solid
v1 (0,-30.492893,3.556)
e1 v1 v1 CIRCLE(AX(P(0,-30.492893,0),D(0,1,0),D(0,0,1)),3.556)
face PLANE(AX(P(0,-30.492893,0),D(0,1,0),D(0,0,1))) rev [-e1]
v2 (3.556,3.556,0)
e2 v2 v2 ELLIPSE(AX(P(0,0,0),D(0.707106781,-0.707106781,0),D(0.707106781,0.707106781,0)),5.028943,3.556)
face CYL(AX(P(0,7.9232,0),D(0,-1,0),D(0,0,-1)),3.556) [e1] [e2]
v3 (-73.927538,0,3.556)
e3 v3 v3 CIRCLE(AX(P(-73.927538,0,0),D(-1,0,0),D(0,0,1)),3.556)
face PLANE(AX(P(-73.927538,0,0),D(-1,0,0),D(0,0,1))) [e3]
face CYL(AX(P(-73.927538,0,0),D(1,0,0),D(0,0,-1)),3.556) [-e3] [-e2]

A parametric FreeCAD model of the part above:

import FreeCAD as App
import Part
import Sketcher
from FreeCAD import Vector
Q = App.Units.Quantity

doc = App.newDocument("Part")
body = doc.addObject("PartDesign::Body", "Body")

# Sketch on YZ plane
sketch1 = body.newObject("Sketcher::SketchObject", "Sketch")
sketch1.AttachmentSupport = (doc.getObject("YZ_Plane"), [""])
sketch1.MapMode = "FlatFace"
sketch1.AttachmentOffset = App.Placement(Vector(0, 0, -73.927538), App.Rotation())
sketch1.addGeometry(Part.Circle(Vector(0, 0, 0), Vector(0, 0, 1), 3.6), False)
sketch1.addConstraint(Sketcher.Constraint("Coincident", 0, 3, -1, 1))
sketch1.addConstraint(Sketcher.Constraint("Diameter", 0, Q("0.28 in")))

# Sketch on XY plane
sketch2 = body.newObject("Sketcher::SketchObject", "Sketch001")
sketch2.AttachmentSupport = (doc.getObject("XY_Plane"), [""])
sketch2.MapMode = "FlatFace"
sketch2.addGeometry(Part.LineSegment(Vector(-74, 0, 0), Vector(0, 0, 0)), False)
sketch2.addGeometry(Part.LineSegment(Vector(0, 0, 0), Vector(0, -30, 0)), False)
sketch2.addConstraint(Sketcher.Constraint("Coincident", 0, 2, 1, 1))
sketch2.addConstraint(Sketcher.Constraint("Horizontal", 0))
sketch2.addConstraint(Sketcher.Constraint("Vertical", 1))
sketch2.addConstraint(Sketcher.Constraint("Coincident", 0, 2, -1, 1))
sketch2.addConstraint(Sketcher.Constraint("DistanceX", 0, 1, 0, 2, Q("73.927538 mm")))
sketch2.addConstraint(Sketcher.Constraint("DistanceY", 1, 2, 1, 1, Q("30.492893 mm")))
doc.recompute()

additivepipe = body.newObject("PartDesign::AdditivePipe", "AdditivePipe")
additivepipe.Profile = sketch1
additivepipe.Spine = (sketch2, ["Edge1", "Edge2"])
additivepipe.Transition = "Right corner"

doc.recompute()
